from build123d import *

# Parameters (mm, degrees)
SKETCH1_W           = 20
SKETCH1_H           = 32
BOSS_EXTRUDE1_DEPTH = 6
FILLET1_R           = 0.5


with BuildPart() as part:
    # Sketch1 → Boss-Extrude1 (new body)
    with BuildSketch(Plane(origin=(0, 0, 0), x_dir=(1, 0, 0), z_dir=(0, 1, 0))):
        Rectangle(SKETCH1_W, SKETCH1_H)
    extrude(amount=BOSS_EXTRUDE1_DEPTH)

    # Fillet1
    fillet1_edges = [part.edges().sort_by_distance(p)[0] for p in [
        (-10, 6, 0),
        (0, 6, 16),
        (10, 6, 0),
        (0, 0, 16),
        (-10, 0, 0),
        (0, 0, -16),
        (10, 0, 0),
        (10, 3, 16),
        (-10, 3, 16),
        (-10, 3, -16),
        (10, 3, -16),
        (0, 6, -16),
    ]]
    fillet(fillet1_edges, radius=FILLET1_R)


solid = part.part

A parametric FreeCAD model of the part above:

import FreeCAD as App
import Part
import Sketcher

doc = App.newDocument("Part")
params = doc.addObject("Spreadsheet::Sheet", "Params")
for row, (alias, value) in enumerate([
    ("sketch1_width", "20 mm"),
    ("sketch1_height", "32 mm"),
    ("pad1_length", "6 mm"),
    ("fillet_radius", "0.5 mm"),
], start=1):
    params.set(f"A{row}", alias)
    params.set(f"B{row}", "=" + value)
    params.setAlias(f"B{row}", alias)

body = doc.addObject("PartDesign::Body", "Body")

sketch1 = doc.addObject("Sketcher::SketchObject", "Sketch")
body.addObject(sketch1)
sketch1.AttachmentSupport = (doc.XZ_Plane, [""])
sketch1.MapMode = "FlatFace"
sketch1.addGeometry([
    Part.LineSegment(App.Vector(-10, -16, 0), App.Vector(-10, 16, 0)),
    Part.LineSegment(App.Vector(-10, 16, 0), App.Vector(10, 16, 0)),
    Part.LineSegment(App.Vector(10, 16, 0), App.Vector(10, -16, 0)),
    Part.LineSegment(App.Vector(10, -16, 0), App.Vector(-10, -16, 0)),
], False)
sketch1.addConstraint([
    Sketcher.Constraint("Coincident", 0, 2, 1, 1),
    Sketcher.Constraint("Coincident", 1, 2, 2, 1),
    Sketcher.Constraint("Coincident", 2, 2, 3, 1),
    Sketcher.Constraint("Coincident", 3, 2, 0, 1),
    Sketcher.Constraint("Vertical", 0),
    Sketcher.Constraint("Horizontal", 1),
    Sketcher.Constraint("Vertical", 2),
    Sketcher.Constraint("Horizontal", 3),
    Sketcher.Constraint("Symmetric", 0, 2, 2, 2, -1, 1),
    Sketcher.Constraint("DistanceX", 1, 1, 1, 2, 20.0),
    Sketcher.Constraint("DistanceY", 0, 1, 0, 2, 32.0),
])
sketch1.setExpression("Constraints[9]", "Params.sketch1_width")
sketch1.setExpression("Constraints[10]", "Params.sketch1_height")
pad1 = doc.addObject("PartDesign::Pad", "Pad")
body.addObject(pad1)
pad1.Profile = sketch1
pad1.setExpression("Length", "Params.pad1_length")
pad1.Reversed = True
doc.recompute()

fillet = doc.addObject("PartDesign::Fillet", "Fillet")
body.addObject(fillet)
fillet.Base = (pad1, ["Edge1"])
fillet.UseAllEdges = True
fillet.setExpression("Radius", "Params.fillet_radius")

doc.recompute()
